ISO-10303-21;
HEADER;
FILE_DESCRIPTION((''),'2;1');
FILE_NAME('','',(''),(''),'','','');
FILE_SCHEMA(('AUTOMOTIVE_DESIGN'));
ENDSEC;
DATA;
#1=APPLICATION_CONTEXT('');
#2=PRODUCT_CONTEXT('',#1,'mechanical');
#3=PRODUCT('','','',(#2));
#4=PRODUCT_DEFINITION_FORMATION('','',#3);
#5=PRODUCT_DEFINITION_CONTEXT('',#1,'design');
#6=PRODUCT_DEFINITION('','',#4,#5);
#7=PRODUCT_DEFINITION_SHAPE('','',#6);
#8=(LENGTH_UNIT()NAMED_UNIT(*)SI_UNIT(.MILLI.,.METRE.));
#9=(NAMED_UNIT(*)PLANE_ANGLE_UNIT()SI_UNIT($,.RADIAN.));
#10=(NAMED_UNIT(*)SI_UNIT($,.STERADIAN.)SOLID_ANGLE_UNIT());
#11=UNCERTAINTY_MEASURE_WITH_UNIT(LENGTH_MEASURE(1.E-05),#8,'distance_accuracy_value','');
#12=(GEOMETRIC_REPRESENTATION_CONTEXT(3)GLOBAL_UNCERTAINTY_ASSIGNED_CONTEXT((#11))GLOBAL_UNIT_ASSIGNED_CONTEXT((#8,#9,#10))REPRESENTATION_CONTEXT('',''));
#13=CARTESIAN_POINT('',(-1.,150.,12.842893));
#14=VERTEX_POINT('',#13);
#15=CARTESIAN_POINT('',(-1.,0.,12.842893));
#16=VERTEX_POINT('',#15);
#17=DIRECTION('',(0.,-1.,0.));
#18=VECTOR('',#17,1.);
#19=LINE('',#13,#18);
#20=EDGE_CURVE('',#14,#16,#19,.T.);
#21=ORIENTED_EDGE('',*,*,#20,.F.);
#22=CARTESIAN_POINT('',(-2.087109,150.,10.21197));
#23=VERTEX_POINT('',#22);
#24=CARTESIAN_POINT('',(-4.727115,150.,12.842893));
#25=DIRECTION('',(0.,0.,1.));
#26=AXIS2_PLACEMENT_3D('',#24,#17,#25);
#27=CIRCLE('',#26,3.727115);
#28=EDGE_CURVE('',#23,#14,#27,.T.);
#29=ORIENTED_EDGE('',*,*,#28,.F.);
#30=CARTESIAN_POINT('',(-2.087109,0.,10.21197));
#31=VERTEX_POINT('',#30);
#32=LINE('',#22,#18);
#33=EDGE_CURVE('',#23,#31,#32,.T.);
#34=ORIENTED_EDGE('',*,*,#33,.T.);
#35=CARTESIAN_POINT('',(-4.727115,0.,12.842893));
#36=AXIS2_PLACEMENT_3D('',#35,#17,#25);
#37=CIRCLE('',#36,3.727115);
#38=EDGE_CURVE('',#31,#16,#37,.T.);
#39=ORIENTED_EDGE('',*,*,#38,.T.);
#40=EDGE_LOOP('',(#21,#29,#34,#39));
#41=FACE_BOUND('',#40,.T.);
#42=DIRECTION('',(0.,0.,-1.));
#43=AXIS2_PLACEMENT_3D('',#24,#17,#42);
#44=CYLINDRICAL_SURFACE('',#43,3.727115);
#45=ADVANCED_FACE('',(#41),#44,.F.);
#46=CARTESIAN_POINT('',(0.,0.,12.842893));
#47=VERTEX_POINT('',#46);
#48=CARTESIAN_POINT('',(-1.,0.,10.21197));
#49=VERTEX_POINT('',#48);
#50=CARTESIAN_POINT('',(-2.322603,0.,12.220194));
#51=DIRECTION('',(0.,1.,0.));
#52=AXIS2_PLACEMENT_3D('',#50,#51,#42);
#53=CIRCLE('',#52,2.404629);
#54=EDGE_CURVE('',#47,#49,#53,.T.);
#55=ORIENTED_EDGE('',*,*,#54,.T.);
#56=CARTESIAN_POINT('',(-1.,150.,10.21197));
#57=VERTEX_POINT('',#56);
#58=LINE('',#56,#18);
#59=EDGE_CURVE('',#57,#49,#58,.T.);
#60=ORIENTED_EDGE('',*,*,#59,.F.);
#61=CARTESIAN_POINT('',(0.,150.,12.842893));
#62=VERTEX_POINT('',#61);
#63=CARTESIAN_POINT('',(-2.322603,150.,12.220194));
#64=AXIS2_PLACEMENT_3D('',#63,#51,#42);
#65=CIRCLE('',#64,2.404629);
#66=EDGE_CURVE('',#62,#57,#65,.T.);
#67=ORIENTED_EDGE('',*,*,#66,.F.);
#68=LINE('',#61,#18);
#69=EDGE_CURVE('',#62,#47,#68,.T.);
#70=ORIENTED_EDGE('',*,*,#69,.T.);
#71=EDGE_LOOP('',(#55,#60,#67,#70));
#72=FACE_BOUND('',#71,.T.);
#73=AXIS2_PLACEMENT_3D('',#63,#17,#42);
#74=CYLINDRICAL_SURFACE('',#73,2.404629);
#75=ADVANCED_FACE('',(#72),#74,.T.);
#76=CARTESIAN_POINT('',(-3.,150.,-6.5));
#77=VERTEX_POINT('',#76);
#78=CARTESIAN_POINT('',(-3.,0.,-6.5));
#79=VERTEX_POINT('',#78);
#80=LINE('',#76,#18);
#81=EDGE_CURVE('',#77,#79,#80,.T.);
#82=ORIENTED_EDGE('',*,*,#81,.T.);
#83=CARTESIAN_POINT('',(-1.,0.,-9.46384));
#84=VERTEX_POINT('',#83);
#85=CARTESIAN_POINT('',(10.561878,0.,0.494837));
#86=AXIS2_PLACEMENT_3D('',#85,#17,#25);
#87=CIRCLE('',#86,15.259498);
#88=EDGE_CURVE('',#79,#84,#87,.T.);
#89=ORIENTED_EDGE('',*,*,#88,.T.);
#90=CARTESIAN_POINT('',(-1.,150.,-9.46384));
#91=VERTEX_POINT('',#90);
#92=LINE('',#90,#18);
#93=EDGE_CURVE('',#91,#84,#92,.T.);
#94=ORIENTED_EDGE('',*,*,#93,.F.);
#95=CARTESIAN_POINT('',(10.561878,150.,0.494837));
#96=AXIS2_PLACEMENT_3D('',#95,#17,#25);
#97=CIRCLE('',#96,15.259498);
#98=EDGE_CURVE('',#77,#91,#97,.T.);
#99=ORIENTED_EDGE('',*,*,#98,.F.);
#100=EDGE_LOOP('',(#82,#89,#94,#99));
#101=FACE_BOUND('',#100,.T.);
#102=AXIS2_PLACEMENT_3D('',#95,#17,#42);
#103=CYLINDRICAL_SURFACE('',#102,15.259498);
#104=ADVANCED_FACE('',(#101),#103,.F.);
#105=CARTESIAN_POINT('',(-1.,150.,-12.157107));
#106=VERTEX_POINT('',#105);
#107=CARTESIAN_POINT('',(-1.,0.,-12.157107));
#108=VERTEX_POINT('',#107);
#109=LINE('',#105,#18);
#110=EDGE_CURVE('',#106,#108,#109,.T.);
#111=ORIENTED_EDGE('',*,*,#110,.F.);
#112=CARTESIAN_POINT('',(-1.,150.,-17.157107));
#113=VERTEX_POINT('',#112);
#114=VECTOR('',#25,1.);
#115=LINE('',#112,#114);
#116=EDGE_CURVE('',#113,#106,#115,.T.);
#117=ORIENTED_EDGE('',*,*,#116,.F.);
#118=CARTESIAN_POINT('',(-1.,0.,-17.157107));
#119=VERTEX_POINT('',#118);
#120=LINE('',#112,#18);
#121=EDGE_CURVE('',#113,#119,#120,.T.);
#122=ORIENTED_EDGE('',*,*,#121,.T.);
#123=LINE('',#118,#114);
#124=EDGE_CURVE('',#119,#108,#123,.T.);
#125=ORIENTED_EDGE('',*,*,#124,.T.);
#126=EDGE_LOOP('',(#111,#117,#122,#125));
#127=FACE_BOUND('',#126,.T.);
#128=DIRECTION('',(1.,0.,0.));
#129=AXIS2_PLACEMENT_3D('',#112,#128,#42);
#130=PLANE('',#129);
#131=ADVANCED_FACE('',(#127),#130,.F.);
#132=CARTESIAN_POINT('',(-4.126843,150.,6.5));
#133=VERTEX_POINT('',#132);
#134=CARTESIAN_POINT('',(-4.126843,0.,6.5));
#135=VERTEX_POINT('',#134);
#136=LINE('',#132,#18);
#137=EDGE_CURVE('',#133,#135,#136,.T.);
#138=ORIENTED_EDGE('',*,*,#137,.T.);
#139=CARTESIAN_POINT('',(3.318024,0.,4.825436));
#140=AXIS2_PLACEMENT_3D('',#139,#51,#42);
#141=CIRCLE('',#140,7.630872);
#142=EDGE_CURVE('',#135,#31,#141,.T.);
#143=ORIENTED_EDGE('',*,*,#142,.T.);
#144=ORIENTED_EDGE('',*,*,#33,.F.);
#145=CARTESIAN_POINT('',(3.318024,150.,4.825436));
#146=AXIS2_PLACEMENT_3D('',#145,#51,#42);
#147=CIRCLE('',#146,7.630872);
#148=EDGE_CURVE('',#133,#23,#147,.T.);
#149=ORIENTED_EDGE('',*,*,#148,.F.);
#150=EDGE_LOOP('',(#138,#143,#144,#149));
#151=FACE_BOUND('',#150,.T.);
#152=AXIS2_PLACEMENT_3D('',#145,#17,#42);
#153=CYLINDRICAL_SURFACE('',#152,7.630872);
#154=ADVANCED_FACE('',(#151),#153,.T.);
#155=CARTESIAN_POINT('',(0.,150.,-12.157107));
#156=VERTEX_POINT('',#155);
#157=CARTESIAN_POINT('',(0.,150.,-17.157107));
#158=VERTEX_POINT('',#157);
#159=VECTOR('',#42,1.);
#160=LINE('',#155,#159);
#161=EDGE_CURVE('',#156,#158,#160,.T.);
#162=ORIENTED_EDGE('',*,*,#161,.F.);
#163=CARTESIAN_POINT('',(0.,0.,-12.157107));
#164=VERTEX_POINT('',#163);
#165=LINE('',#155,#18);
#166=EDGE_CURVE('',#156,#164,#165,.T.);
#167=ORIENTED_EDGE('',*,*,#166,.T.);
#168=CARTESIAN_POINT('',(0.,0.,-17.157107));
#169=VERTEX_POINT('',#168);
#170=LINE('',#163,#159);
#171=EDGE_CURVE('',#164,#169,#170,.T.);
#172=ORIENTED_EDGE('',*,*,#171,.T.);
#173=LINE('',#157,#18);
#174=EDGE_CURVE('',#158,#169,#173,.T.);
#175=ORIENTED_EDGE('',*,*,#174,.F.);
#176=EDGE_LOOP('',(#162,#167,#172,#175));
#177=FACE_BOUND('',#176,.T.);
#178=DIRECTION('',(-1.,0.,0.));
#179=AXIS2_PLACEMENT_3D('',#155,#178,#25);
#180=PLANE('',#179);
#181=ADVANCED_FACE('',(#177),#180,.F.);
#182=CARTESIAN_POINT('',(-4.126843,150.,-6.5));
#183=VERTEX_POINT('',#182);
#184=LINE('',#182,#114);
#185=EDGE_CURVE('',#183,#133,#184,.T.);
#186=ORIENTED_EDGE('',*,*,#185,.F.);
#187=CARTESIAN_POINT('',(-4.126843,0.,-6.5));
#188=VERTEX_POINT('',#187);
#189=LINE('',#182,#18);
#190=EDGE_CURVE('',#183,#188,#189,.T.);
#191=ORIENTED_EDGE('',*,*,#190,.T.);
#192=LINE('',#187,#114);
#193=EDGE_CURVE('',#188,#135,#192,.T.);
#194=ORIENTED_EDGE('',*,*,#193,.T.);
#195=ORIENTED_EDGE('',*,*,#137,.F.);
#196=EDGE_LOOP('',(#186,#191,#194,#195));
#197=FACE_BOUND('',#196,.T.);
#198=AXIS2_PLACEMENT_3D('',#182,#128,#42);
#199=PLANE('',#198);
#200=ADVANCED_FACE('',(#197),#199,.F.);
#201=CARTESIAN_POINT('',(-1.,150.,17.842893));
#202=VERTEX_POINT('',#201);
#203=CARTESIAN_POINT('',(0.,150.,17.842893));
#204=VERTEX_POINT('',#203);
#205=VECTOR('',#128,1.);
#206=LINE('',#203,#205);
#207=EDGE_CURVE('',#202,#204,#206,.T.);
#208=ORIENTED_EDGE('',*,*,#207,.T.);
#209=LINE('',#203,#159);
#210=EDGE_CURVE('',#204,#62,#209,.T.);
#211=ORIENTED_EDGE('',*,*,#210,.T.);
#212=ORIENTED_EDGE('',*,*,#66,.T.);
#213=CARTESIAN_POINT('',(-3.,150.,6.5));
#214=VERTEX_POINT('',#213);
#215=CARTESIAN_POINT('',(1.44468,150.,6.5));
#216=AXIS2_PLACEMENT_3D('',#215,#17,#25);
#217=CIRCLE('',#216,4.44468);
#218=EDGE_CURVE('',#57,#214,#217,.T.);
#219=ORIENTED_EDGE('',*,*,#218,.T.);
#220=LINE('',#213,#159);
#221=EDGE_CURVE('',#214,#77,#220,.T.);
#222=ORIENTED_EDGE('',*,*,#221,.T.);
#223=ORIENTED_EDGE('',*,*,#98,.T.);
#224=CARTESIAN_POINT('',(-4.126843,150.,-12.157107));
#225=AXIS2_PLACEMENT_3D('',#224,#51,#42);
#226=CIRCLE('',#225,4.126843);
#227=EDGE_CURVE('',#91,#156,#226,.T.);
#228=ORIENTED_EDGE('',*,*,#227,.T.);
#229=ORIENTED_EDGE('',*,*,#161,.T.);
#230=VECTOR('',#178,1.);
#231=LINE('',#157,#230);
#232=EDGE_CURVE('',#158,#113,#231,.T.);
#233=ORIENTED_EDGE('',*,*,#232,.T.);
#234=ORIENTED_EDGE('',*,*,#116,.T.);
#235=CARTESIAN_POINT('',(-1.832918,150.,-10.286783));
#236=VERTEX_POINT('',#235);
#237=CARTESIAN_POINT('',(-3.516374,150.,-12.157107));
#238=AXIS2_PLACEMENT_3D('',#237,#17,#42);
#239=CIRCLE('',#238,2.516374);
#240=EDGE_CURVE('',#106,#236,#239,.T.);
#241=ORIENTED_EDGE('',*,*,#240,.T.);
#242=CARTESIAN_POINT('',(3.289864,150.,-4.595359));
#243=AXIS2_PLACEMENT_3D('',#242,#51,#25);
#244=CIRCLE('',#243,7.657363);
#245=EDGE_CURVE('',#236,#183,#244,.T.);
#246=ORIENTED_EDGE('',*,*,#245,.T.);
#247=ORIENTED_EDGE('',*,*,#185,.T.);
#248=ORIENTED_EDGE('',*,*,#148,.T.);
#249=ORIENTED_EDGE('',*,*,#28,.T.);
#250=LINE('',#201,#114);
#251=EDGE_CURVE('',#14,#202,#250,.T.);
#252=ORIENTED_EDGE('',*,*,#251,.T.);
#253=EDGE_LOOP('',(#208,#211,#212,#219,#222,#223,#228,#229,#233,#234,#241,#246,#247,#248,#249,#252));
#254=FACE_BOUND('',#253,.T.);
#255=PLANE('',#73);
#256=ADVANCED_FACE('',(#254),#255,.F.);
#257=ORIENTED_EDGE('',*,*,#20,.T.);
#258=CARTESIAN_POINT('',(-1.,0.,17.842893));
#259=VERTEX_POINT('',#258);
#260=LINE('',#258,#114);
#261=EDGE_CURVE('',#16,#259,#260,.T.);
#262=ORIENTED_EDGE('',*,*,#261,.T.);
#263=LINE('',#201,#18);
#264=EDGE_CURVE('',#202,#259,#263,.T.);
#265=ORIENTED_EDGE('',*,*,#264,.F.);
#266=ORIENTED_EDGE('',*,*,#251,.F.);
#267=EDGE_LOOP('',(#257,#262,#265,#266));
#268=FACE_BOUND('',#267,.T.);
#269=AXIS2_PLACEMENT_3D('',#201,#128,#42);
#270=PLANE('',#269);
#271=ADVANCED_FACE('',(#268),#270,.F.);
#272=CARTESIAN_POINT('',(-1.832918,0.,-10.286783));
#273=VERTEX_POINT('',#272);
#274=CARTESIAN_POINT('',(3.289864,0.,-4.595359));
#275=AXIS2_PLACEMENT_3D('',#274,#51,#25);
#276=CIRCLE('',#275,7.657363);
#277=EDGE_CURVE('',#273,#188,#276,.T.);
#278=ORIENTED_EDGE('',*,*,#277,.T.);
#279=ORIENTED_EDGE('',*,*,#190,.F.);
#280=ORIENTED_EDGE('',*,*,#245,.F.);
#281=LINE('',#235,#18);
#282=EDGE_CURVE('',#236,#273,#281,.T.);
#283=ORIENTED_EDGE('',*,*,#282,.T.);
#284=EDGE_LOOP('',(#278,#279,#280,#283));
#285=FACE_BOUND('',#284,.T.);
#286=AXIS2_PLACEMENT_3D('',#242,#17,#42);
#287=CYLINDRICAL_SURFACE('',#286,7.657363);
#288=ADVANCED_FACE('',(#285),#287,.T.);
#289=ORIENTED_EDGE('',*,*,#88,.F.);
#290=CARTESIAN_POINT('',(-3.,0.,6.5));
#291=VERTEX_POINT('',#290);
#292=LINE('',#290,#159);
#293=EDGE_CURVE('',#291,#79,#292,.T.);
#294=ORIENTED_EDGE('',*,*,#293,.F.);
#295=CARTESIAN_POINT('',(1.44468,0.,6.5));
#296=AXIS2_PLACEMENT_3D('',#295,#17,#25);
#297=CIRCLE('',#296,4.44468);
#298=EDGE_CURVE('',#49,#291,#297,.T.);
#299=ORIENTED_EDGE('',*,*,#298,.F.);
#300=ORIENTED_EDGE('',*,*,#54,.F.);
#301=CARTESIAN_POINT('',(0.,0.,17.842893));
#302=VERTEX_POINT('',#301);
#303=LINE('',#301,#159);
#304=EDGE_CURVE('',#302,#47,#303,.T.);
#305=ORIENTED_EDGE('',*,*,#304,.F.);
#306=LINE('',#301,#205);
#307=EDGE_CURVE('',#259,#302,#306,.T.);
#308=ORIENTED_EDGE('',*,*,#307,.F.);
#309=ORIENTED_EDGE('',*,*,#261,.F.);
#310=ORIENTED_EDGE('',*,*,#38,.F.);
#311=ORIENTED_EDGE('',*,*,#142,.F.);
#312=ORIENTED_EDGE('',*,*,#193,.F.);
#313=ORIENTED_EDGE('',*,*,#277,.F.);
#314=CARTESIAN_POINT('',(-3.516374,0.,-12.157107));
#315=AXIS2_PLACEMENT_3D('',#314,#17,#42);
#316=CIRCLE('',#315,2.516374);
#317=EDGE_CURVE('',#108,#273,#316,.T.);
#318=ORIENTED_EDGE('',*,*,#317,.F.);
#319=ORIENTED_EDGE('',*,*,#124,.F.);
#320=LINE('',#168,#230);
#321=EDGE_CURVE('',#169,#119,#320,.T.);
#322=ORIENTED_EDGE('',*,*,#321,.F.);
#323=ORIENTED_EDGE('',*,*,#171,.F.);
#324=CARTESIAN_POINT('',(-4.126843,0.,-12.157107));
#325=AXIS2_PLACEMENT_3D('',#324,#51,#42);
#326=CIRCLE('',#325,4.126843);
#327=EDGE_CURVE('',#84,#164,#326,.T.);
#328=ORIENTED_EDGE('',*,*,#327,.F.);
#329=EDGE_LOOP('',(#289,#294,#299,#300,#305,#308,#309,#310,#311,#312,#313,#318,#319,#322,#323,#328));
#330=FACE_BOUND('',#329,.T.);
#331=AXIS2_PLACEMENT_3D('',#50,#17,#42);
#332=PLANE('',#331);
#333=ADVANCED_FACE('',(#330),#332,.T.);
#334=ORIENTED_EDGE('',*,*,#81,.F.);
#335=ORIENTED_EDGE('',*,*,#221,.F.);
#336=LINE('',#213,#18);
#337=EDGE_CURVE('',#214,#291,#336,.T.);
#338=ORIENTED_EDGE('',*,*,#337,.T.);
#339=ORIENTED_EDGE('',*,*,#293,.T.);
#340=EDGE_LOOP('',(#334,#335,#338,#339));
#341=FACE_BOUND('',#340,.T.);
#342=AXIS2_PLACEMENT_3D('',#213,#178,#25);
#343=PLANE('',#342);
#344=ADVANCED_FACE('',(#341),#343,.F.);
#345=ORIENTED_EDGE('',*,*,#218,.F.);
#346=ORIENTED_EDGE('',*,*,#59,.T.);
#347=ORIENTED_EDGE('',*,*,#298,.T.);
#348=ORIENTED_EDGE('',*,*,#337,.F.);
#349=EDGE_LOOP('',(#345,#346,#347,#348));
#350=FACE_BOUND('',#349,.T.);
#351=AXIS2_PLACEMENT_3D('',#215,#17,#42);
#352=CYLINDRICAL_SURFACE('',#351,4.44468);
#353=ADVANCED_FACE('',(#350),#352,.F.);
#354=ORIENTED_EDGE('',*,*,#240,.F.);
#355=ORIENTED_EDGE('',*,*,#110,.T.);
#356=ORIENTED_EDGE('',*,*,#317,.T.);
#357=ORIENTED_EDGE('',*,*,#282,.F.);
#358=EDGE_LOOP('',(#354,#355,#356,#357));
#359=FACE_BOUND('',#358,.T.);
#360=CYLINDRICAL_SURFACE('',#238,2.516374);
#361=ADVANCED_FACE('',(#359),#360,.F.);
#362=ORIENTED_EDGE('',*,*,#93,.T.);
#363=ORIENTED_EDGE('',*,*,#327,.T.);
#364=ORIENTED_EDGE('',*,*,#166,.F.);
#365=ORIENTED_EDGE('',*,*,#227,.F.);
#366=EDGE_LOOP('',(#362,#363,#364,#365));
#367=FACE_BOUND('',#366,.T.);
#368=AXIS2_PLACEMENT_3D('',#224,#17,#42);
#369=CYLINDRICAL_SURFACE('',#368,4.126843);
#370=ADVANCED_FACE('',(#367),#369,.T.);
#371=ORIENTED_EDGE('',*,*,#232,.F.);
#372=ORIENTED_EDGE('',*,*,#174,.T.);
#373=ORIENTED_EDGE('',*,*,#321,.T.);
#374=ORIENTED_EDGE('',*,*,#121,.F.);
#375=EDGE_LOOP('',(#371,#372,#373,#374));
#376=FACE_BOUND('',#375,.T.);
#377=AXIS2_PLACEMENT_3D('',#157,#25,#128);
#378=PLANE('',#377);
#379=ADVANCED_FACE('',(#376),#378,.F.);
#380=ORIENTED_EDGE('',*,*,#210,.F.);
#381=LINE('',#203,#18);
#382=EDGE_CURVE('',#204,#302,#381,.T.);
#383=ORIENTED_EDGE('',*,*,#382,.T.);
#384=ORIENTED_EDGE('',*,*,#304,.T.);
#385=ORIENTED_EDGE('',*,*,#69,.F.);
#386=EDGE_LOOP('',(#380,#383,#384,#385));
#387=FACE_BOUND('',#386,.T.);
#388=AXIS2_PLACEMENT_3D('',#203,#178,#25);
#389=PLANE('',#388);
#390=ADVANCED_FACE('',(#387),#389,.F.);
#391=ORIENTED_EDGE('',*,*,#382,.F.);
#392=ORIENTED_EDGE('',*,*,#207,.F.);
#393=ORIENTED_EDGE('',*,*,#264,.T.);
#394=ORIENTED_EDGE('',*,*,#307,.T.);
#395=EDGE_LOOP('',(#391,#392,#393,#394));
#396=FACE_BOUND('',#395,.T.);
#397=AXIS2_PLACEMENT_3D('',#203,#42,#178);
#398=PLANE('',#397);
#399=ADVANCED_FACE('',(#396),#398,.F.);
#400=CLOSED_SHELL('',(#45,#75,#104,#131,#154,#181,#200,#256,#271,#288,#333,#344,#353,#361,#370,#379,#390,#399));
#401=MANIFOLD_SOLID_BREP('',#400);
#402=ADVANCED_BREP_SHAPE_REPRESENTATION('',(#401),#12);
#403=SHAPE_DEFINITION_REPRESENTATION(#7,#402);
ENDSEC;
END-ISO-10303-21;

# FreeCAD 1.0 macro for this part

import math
import FreeCAD as App
import Part
import Sketcher

V = App.Vector

doc = App.newDocument("Part")
params = doc.addObject("Spreadsheet::Sheet", "Params")
for row, (alias, value) in enumerate([
    ("sketch1_width", "1 mm"),
    ("sketch1_height", "5 mm"),
    ("sketch1_height2", "13 mm"),
    ("pad1_length", "150 mm"),
], start=1):
    params.set(f"A{row}", alias)
    params.set(f"B{row}", "=" + value)
    params.setAlias(f"B{row}", alias)

body = doc.addObject("PartDesign::Body", "Body")

sketch1 = doc.addObject("Sketcher::SketchObject", "Sketch")
body.addObject(sketch1)
sketch1.AttachmentSupport = (doc.XZ_Plane, [""])
sketch1.MapMode = "FlatFace"
sketch1.addGeometry([
    Part.LineSegment(V(0, -12.157107, 0), V(0, -17.157107, 0)),
    Part.LineSegment(V(0, -17.157107, 0), V(-1, -17.157107, 0)),
    Part.LineSegment(V(-1, -17.157107, 0), V(-1, -12.157107, 0)),
    Part.ArcOfCircle(Part.Circle(V(-3.516374, -12.157107, 0), V(0, 0, 1), 2.516374), math.radians(0), math.radians(48.010008)),
    Part.ArcOfCircle(Part.Circle(V(3.289864, -4.595359, 0), V(0, 0, 1), 7.657363), math.radians(-165.597431), math.radians(-131.989992)),
    Part.LineSegment(V(-4.126843, -6.5, 0), V(-4.126843, 6.5, 0)),
    Part.ArcOfCircle(Part.Circle(V(3.318024, 4.825436, 0), V(0, 0, 1), 7.630872), math.radians(135.098744), math.radians(167.323506)),
    Part.ArcOfCircle(Part.Circle(V(-4.727115, 12.842893, 0), V(0, 0, 1), 3.727115), math.radians(-44.901256), math.radians(0)),
    Part.LineSegment(V(-1, 12.842893, 0), V(-1, 17.842893, 0)),
    Part.LineSegment(V(-1, 17.842893, 0), V(0, 17.842893, 0)),
    Part.LineSegment(V(0, 17.842893, 0), V(0, 12.842893, 0)),
    Part.ArcOfCircle(Part.Circle(V(-2.322603, 12.220194, 0), V(0, 0, 1), 2.404629), math.radians(-56.631348), math.radians(15.008275)),
    Part.ArcOfCircle(Part.Circle(V(1.44468, 6.5, 0), V(0, 0, 1), 4.44468), math.radians(123.368652), math.radians(180)),
    Part.LineSegment(V(-3, 6.5, 0), V(-3, -6.5, 0)),
    Part.ArcOfCircle(Part.Circle(V(10.561878, 0.494837, 0), V(0, 0, 1), 15.259498), math.radians(-152.716583), math.radians(-139.26045)),
    Part.ArcOfCircle(Part.Circle(V(-4.126843, -12.157107, 0), V(0, 0, 1), 4.126843), math.radians(0), math.radians(40.73955)),
], False)
sketch1.addConstraint([
    Sketcher.Constraint("Coincident", 0, 2, 1, 1),
    Sketcher.Constraint("Coincident", 1, 2, 2, 1),
    Sketcher.Constraint("Tangent", 2, 2, 3, 1),
    Sketcher.Constraint("Tangent", 3, 2, 4, 2),
    Sketcher.Constraint("Coincident", 4, 1, 5, 1),
    Sketcher.Constraint("Coincident", 5, 2, 6, 2),
    Sketcher.Constraint("Tangent", 6, 1, 7, 1),
    Sketcher.Constraint("Tangent", 7, 2, 8, 1),
    Sketcher.Constraint("Coincident", 8, 2, 9, 1),
    Sketcher.Constraint("Coincident", 9, 2, 10, 1),
    Sketcher.Constraint("Coincident", 10, 2, 11, 2),
    Sketcher.Constraint("Tangent", 11, 1, 12, 1),
    Sketcher.Constraint("Tangent", 12, 2, 13, 1),
    Sketcher.Constraint("Coincident", 13, 2, 14, 1),
    Sketcher.Constraint("Tangent", 14, 2, 15, 2),
    Sketcher.Constraint("Tangent", 15, 1, 0, 1),
    Sketcher.Constraint("Vertical", 0),
    Sketcher.Constraint("Horizontal", 1),
    Sketcher.Constraint("Vertical", 2),
    Sketcher.Constraint("Vertical", 5),
    Sketcher.Constraint("Vertical", 8),
    Sketcher.Constraint("Horizontal", 9),
    Sketcher.Constraint("Vertical", 10),
    Sketcher.Constraint("Vertical", 13),
    Sketcher.Constraint("PointOnObject", 0, 2, -2),
    Sketcher.Constraint("PointOnObject", 9, 2, -2),
    Sketcher.Constraint("Horizontal", 3, 3, 15, 3),
    Sketcher.Constraint("Horizontal", 12, 3, 5, 2),
    Sketcher.Constraint("Horizontal", 7, 2, 10, 2),
    Sketcher.Constraint("Horizontal", 6, 1, 11, 1),
    Sketcher.Constraint("Horizontal", 4, 1, 13, 2),
    Sketcher.Constraint("Vertical", 15, 3, 4, 1),
    Sketcher.Constraint("Vertical", 2, 2, 7, 2),
    Sketcher.Constraint("Vertical", 8, 2, 11, 1),
    Sketcher.Constraint("Vertical", 11, 1, 14, 2),
    Sketcher.Constraint("Equal", 2, 8),
    Sketcher.Constraint("DistanceX", 1, 2, 1, 1, 1.0),
    Sketcher.Constraint("DistanceY", 0, 2, 0, 1, 5.0),
    Sketcher.Constraint("DistanceY", 5, 1, 5, 2, 13.0),
    Sketcher.Constraint("DistanceX", 12, 2, -1, 1, 3.0),
    Sketcher.Constraint("DistanceY", 3, 3, 7, 3, 25.0),
    Sketcher.Constraint("DistanceY", -1, 1, 12, 3, 6.5),
    Sketcher.Constraint("Radius", 6, 7.630872),
    Sketcher.Constraint("Radius", 11, 2.404629),
    Sketcher.Constraint("Radius", 12, 4.44468),
    Sketcher.Constraint("Radius", 3, 2.516374),
    Sketcher.Constraint("Radius", 4, 7.657363),
    Sketcher.Constraint("Radius", 7, 3.727115),
])
sketch1.setExpression("Constraints[36]", "Params.sketch1_width")
sketch1.setExpression("Constraints[37]", "Params.sketch1_height")
sketch1.setExpression("Constraints[38]", "Params.sketch1_height2")
pad1 = doc.addObject("PartDesign::Pad", "Pad")
body.addObject(pad1)
pad1.Profile = sketch1
pad1.setExpression("Length", "Params.pad1_length")
pad1.Reversed = True

doc.recompute()
